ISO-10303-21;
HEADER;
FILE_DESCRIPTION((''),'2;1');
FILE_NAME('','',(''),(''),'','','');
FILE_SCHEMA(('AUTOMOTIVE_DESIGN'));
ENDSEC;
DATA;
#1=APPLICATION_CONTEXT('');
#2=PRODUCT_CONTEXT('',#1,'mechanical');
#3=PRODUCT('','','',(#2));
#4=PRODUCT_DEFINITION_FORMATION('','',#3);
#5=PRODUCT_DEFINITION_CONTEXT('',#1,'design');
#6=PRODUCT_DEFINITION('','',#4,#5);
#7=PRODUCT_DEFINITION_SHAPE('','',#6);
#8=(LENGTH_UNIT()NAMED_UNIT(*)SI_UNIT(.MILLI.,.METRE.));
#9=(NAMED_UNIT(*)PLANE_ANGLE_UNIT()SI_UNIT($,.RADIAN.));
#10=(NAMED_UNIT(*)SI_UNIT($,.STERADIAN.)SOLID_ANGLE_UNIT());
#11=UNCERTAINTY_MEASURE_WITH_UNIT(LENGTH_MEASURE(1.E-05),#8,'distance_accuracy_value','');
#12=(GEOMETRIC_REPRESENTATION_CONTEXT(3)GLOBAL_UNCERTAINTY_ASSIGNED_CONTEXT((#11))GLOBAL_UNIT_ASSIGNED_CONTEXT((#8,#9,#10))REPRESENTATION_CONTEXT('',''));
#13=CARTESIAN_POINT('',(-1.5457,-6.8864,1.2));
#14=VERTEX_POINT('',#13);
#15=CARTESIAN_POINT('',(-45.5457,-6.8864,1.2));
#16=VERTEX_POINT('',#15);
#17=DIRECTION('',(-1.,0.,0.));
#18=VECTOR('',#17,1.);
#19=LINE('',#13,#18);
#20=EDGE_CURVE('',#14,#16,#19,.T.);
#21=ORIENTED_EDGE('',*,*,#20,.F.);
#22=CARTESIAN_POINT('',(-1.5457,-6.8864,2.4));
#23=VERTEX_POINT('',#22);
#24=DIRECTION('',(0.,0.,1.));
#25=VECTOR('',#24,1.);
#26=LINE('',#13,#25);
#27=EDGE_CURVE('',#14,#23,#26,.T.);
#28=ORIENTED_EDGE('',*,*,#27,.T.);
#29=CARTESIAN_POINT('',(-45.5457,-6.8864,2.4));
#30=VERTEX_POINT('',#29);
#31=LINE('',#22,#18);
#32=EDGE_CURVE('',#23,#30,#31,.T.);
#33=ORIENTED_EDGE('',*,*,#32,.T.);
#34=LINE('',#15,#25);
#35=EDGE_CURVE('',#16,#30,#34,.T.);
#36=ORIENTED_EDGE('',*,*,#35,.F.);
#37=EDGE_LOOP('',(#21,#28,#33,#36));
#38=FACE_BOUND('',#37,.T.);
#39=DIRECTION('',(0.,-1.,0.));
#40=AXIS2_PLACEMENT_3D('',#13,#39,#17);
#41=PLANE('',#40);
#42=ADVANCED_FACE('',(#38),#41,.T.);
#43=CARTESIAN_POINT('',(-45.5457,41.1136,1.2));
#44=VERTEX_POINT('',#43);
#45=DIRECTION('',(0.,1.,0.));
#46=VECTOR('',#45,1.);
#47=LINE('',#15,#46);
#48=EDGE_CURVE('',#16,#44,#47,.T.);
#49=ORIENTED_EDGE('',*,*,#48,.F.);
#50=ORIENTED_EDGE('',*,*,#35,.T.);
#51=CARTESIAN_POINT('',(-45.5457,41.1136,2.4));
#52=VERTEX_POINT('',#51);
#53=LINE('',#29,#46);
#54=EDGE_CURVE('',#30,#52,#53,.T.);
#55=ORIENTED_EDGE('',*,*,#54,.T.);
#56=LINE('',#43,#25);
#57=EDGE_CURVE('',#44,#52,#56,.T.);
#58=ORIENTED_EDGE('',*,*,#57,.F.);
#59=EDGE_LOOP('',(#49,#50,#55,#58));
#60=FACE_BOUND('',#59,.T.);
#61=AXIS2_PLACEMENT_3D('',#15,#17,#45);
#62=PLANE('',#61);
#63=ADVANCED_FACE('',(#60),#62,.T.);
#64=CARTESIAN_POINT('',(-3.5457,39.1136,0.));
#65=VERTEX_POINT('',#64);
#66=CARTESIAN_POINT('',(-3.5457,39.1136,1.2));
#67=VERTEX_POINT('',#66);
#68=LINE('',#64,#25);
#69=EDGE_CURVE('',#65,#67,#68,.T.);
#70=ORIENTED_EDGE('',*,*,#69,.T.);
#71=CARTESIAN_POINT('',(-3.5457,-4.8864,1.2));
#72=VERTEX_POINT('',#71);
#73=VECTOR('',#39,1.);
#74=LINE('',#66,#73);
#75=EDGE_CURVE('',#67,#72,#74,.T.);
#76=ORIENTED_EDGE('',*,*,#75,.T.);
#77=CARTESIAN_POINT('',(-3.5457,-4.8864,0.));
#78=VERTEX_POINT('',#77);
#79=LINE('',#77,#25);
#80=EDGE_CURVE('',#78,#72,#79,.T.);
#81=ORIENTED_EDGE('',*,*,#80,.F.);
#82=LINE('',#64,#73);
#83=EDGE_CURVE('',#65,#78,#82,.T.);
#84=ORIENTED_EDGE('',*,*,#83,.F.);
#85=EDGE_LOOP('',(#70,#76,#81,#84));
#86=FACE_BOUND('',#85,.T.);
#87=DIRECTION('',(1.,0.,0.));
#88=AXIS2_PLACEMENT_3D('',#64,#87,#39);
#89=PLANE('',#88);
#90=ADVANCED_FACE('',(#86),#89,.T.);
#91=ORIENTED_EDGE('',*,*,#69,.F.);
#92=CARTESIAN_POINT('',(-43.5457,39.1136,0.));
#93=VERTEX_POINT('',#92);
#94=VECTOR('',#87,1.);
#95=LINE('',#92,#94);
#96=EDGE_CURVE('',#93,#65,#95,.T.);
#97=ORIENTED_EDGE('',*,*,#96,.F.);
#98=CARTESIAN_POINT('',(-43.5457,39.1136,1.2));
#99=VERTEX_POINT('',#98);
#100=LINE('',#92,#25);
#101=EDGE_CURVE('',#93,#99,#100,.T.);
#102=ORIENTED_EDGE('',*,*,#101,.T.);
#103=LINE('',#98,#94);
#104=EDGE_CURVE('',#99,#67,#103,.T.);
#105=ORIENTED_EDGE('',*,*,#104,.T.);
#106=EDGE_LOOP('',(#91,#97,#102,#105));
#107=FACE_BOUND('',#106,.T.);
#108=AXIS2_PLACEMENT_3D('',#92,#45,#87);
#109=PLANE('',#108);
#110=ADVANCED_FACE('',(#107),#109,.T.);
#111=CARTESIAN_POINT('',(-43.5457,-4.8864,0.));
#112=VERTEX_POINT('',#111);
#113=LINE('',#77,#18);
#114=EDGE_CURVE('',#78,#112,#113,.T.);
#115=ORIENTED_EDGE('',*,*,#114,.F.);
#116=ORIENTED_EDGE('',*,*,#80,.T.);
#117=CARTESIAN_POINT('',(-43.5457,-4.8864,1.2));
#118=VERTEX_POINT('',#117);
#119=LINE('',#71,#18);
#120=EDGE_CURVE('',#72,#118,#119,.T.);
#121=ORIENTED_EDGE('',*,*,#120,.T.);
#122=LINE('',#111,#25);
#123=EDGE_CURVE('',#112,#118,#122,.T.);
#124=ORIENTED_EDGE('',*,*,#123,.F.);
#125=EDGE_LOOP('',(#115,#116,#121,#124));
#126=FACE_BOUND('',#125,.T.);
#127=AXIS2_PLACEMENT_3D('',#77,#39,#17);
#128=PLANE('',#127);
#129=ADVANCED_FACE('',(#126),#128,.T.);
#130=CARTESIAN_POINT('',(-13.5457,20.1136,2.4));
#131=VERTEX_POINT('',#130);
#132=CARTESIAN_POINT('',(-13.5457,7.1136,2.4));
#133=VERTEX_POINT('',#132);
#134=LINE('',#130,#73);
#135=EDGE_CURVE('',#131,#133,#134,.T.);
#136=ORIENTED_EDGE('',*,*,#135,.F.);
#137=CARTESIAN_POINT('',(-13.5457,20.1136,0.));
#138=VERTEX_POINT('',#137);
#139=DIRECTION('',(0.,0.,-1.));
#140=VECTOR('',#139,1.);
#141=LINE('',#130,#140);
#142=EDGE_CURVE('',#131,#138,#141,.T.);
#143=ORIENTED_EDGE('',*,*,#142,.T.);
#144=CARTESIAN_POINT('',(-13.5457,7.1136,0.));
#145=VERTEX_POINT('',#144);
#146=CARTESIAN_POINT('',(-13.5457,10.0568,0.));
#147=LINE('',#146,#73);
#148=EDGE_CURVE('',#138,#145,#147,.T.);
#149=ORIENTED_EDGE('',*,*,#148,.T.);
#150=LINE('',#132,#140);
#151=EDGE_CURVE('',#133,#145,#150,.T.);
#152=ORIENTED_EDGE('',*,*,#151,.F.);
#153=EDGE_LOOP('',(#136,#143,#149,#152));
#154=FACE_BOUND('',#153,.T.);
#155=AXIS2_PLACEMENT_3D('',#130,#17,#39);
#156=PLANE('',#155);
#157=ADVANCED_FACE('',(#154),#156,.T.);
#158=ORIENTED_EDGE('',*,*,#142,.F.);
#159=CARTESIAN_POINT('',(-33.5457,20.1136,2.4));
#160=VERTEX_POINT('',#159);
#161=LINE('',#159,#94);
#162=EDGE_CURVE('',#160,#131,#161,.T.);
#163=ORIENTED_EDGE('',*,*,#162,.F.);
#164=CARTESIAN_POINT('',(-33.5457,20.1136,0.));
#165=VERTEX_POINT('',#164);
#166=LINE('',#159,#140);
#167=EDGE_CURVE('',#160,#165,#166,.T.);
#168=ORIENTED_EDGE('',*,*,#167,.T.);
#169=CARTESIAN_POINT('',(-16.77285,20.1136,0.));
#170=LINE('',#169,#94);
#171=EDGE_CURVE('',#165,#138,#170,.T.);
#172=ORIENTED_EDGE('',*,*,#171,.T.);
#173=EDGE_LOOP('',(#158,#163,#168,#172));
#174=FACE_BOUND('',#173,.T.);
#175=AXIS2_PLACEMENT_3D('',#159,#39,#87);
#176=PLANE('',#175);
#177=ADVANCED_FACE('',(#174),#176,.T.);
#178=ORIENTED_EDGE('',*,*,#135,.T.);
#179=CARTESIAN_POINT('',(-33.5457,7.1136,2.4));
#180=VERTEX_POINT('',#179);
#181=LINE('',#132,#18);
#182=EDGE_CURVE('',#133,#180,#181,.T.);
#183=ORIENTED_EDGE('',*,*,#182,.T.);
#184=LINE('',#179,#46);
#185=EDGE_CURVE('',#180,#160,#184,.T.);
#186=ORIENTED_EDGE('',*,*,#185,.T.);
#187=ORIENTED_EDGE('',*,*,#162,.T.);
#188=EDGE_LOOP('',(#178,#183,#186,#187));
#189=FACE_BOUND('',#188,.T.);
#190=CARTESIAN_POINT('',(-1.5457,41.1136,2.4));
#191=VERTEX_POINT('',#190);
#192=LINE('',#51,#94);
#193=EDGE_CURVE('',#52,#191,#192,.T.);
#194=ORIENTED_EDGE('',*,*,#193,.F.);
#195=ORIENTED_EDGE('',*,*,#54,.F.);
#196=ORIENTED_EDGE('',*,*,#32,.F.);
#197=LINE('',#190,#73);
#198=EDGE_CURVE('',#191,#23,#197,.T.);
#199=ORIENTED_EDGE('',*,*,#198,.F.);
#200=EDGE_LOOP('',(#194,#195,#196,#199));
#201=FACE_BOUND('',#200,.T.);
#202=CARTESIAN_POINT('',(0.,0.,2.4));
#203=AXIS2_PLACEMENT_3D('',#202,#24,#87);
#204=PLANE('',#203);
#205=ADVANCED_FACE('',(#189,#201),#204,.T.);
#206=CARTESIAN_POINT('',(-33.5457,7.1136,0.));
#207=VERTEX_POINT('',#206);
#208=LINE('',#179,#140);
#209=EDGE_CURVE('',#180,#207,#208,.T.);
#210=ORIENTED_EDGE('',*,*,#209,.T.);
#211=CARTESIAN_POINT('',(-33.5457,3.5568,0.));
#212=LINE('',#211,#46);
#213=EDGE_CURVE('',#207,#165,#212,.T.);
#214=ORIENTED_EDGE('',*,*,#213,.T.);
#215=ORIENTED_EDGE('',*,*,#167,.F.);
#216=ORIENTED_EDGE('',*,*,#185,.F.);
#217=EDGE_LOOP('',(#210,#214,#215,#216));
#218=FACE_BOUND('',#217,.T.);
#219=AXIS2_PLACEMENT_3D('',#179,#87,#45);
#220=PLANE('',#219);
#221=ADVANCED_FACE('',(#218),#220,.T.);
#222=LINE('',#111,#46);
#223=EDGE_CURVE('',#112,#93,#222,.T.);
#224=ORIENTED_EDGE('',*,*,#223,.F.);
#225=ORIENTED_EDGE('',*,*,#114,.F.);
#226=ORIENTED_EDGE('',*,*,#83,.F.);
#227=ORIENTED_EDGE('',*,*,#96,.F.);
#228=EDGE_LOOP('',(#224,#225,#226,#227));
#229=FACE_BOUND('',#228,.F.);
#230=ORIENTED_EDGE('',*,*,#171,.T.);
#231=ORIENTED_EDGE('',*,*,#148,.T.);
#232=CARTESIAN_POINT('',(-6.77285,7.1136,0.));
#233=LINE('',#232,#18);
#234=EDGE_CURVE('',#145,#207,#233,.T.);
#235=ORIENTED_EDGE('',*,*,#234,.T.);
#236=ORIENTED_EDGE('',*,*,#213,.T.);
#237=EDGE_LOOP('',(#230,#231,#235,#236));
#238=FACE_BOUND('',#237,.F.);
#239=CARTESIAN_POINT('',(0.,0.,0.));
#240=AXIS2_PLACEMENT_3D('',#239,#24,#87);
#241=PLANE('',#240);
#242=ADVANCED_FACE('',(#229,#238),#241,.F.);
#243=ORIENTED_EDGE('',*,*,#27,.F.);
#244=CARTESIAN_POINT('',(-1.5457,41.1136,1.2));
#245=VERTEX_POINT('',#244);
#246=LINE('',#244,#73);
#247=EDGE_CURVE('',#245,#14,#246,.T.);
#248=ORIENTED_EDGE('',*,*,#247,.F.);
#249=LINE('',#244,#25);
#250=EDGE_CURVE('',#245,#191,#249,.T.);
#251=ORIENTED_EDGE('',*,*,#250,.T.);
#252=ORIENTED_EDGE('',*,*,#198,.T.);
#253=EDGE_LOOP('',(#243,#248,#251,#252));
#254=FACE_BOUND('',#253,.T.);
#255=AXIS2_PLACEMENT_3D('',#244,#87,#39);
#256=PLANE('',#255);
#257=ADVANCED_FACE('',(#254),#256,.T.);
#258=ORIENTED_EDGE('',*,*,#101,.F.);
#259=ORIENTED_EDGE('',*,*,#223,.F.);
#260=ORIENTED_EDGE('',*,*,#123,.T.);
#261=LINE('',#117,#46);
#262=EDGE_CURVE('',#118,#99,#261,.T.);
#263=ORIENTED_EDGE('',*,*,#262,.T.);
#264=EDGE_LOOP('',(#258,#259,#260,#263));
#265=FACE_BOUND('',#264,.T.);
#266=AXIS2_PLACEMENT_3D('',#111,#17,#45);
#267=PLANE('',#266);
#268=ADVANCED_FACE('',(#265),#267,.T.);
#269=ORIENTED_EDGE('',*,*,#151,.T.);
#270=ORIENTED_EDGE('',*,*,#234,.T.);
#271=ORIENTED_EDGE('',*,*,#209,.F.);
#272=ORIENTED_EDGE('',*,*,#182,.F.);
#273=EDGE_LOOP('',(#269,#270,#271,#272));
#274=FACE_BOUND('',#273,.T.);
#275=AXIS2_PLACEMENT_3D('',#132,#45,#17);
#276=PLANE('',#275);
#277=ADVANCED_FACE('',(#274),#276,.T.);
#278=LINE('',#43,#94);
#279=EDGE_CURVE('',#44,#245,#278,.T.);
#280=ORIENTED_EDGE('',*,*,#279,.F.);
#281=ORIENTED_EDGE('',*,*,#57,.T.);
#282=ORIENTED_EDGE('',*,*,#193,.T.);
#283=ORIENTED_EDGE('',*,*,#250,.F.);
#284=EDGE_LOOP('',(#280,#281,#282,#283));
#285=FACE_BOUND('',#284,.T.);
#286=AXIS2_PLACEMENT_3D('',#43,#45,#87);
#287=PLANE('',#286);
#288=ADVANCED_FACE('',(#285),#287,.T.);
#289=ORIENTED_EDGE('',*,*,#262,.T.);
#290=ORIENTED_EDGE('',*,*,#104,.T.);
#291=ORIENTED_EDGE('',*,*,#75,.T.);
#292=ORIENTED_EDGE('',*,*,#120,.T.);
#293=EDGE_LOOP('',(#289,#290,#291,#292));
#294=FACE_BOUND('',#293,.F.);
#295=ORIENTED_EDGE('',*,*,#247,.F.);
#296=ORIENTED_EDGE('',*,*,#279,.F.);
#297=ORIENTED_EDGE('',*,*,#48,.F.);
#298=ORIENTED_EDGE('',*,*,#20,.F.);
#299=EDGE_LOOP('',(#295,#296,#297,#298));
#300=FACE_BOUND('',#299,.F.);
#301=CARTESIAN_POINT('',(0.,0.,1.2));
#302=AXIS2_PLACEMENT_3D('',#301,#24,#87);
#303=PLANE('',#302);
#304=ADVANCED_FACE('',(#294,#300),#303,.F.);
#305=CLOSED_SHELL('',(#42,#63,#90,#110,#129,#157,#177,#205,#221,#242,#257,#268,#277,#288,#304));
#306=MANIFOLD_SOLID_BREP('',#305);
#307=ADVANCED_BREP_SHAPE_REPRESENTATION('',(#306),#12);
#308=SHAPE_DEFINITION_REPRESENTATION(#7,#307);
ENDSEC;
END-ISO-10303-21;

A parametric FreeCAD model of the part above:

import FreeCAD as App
import Part
import Sketcher

V = App.Vector

doc = App.newDocument("Part")
params = doc.addObject("Spreadsheet::Sheet", "Params")
for row, (alias, value) in enumerate([
    ("sketch1_width", "40 mm"),
    ("sketch1_height", "44 mm"),
    ("pad1_length", "1.2 mm"),
    ("sketch2_width", "44 mm"),
    ("sketch2_height", "48 mm"),
    ("pad2_length", "1.2 mm"),
    ("sketch3_width", "20 mm"),
    ("sketch3_height", "13 mm"),
    ("pocket1_length", "3 mm"),
], start=1):
    params.set(f"A{row}", alias)
    params.set(f"B{row}", "=" + value)
    params.setAlias(f"B{row}", alias)

body = doc.addObject("PartDesign::Body", "Body")

sketch1 = body.newObject("Sketcher::SketchObject", "Sketch")
sketch1.AttachmentSupport = (doc.getObject("XY_Plane"), [""])
sketch1.MapMode = "FlatFace"
sketch1.addGeometry([
    Part.LineSegment(V(-4, 39, 0), V(-44, 39, 0)),
    Part.LineSegment(V(-44, 39, 0), V(-44, -5, 0)),
    Part.LineSegment(V(-44, -5, 0), V(-4, -5, 0)),
    Part.LineSegment(V(-4, -5, 0), V(-4, 39, 0)),
], False)
sketch1.addConstraint([
    Sketcher.Constraint("Coincident", 0, 2, 1, 1),
    Sketcher.Constraint("Coincident", 1, 2, 2, 1),
    Sketcher.Constraint("Coincident", 2, 2, 3, 1),
    Sketcher.Constraint("Coincident", 3, 2, 0, 1),
    Sketcher.Constraint("Horizontal", 0),
    Sketcher.Constraint("Vertical", 1),
    Sketcher.Constraint("Horizontal", 2),
    Sketcher.Constraint("Vertical", 3),
    Sketcher.Constraint("DistanceX", 0, 2, 0, 1, 40.0),
    Sketcher.Constraint("DistanceY", 1, 2, 1, 1, 44.0),
    Sketcher.Constraint("DistanceX", 0, 2, -1, 1, 43.5457),
    Sketcher.Constraint("DistanceY", -1, 1, 0, 2, 39.1136),
])
sketch1.setExpression("Constraints[8]", "Params.sketch1_width")
sketch1.setExpression("Constraints[9]", "Params.sketch1_height")
pad1 = body.newObject("PartDesign::Pad", "Pad")
pad1.Profile = sketch1
pad1.setExpression("Length", "Params.pad1_length")

sketch2 = body.newObject("Sketcher::SketchObject", "Sketch001")
sketch2.AttachmentSupport = (doc.getObject("XY_Plane"), [""])
sketch2.MapMode = "FlatFace"
sketch2.AttachmentOffset = App.Placement(V(0, 0, 1.2), App.Rotation())
sketch2.addGeometry([
    Part.LineSegment(V(-2, 41, 0), V(-46, 41, 0)),
    Part.LineSegment(V(-46, 41, 0), V(-46, -7, 0)),
    Part.LineSegment(V(-46, -7, 0), V(-2, -7, 0)),
    Part.LineSegment(V(-2, -7, 0), V(-2, 41, 0)),
], False)
sketch2.addConstraint([
    Sketcher.Constraint("Coincident", 0, 2, 1, 1),
    Sketcher.Constraint("Coincident", 1, 2, 2, 1),
    Sketcher.Constraint("Coincident", 2, 2, 3, 1),
    Sketcher.Constraint("Coincident", 3, 2, 0, 1),
    Sketcher.Constraint("Horizontal", 0),
    Sketcher.Constraint("Vertical", 1),
    Sketcher.Constraint("Horizontal", 2),
    Sketcher.Constraint("Vertical", 3),
    Sketcher.Constraint("DistanceX", 0, 2, 0, 1, 44.0),
    Sketcher.Constraint("DistanceY", 1, 2, 1, 1, 48.0),
    Sketcher.Constraint("DistanceX", 0, 2, -1, 1, 45.5457),
    Sketcher.Constraint("DistanceY", -1, 1, 0, 2, 41.1136),
])
sketch2.setExpression("Constraints[8]", "Params.sketch2_width")
sketch2.setExpression("Constraints[9]", "Params.sketch2_height")
pad2 = body.newObject("PartDesign::Pad", "Pad001")
pad2.Profile = sketch2
pad2.setExpression("Length", "Params.pad2_length")

sketch3 = body.newObject("Sketcher::SketchObject", "Sketch002")
sketch3.AttachmentSupport = (doc.getObject("XY_Plane"), [""])
sketch3.MapMode = "FlatFace"
sketch3.AttachmentOffset = App.Placement(V(0, 0, 2.4), App.Rotation())
sketch3.addGeometry([
    Part.LineSegment(V(-14, 20, 0), V(-34, 20, 0)),
    Part.LineSegment(V(-34, 20, 0), V(-34, 7, 0)),
    Part.LineSegment(V(-34, 7, 0), V(-14, 7, 0)),
    Part.LineSegment(V(-14, 7, 0), V(-14, 20, 0)),
], False)
sketch3.addConstraint([
    Sketcher.Constraint("Coincident", 0, 2, 1, 1),
    Sketcher.Constraint("Coincident", 1, 2, 2, 1),
    Sketcher.Constraint("Coincident", 2, 2, 3, 1),
    Sketcher.Constraint("Coincident", 3, 2, 0, 1),
    Sketcher.Constraint("Horizontal", 0),
    Sketcher.Constraint("Vertical", 1),
    Sketcher.Constraint("Horizontal", 2),
    Sketcher.Constraint("Vertical", 3),
    Sketcher.Constraint("DistanceX", 0, 2, 0, 1, 20.0),
    Sketcher.Constraint("DistanceY", 1, 2, 1, 1, 13.0),
    Sketcher.Constraint("DistanceX", 0, 2, -1, 1, 33.5457),
    Sketcher.Constraint("DistanceY", -1, 1, 0, 2, 20.1136),
])
sketch3.setExpression("Constraints[8]", "Params.sketch3_width")
sketch3.setExpression("Constraints[9]", "Params.sketch3_height")
pocket1 = body.newObject("PartDesign::Pocket", "Pocket")
pocket1.Profile = sketch3
pocket1.setExpression("Length", "Params.pocket1_length")

doc.recompute()
